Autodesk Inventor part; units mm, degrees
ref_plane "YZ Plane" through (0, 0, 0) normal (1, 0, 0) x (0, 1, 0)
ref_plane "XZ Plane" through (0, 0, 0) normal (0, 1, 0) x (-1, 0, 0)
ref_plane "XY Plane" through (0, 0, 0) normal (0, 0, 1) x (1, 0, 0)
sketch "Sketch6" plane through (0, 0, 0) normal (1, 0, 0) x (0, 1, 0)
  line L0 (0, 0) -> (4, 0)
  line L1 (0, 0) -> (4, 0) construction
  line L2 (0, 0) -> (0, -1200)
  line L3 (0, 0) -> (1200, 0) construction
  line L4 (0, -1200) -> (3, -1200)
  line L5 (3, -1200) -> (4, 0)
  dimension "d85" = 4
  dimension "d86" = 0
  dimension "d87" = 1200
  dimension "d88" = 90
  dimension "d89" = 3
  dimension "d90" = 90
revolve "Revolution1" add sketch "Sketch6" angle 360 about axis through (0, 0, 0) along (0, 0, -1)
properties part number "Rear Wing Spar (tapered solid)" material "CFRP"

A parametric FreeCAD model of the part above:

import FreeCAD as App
import Part
import Sketcher
Q = App.Units.Quantity


def add_polygon(sketch, points):
    """Adds a closed chain of lines whose ends are joined by coincident constraints."""
    first, n = sketch.GeometryCount, len(points)
    for a, b in zip(points, points[1:] + points[:1]):
        sketch.addGeometry(Part.LineSegment(App.Vector(*a, 0), App.Vector(*b, 0)), False)
    for i in range(n):
        sketch.addConstraint(Sketcher.Constraint("Coincident", first + i, 2, first + (i + 1) % n, 1))

doc = App.newDocument("Part")
body = doc.addObject("PartDesign::Body", "Body")

sketch1 = body.newObject("Sketcher::SketchObject", "Sketch")
sketch1.AttachmentSupport = (doc.getObject("YZ_Plane"), [""])
sketch1.MapMode = "FlatFace"
add_polygon(sketch1, [(4, 0), (0, 0), (0, -1200), (3, -1200)])
sketch1.addConstraint([
    Sketcher.Constraint("Horizontal", 0),
    Sketcher.Constraint("Vertical", 1),
    Sketcher.Constraint("Horizontal", 2),
    Sketcher.Constraint("Coincident", 0, 2, -1, 1),
    Sketcher.Constraint("DistanceX", 0, 2, 0, 1, Q("4 mm")),
    Sketcher.Constraint("DistanceX", 2, 1, 2, 2, Q("3 mm")),
    Sketcher.Constraint("DistanceY", 1, 2, 1, 1, Q("1200 mm")),
])
revolution = body.newObject("PartDesign::Revolution", "Revolution")
revolution.Profile = sketch1
revolution.ReferenceAxis = (sketch1, ["V_Axis"])
revolution.Angle = 360

doc.recompute()
